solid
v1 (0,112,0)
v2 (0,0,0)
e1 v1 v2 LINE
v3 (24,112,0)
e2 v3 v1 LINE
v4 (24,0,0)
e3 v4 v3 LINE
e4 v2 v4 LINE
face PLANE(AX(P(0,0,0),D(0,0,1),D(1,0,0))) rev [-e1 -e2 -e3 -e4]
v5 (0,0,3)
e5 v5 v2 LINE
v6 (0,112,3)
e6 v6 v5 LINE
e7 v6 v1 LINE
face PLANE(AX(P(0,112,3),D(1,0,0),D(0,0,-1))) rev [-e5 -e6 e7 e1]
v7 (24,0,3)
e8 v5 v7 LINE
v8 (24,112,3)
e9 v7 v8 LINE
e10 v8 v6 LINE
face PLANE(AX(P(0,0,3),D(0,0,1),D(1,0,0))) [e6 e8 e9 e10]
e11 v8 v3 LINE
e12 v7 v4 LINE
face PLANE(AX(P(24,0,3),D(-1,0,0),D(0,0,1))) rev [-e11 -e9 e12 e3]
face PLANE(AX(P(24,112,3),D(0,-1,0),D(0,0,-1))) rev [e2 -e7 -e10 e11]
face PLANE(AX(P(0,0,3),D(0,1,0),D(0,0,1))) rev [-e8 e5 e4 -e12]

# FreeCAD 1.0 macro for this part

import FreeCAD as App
import Part
import Sketcher
from FreeCAD import Vector


def add_polygon(sketch, points):
    """Adds a closed chain of lines whose ends are joined by coincident constraints."""
    first, n = sketch.GeometryCount, len(points)
    for a, b in zip(points, points[1:] + points[:1]):
        sketch.addGeometry(Part.LineSegment(App.Vector(*a, 0), App.Vector(*b, 0)), False)
    for i in range(n):
        sketch.addConstraint(Sketcher.Constraint("Coincident", first + i, 2, first + (i + 1) % n, 1))

doc = App.newDocument("Part")
body = doc.addObject("PartDesign::Body", "Body")

# Sketch on XY plane
sketch1 = body.newObject("Sketcher::SketchObject", "Sketch")
sketch1.AttachmentSupport = (doc.getObject("XY_Plane"), [""])
sketch1.MapMode = "FlatFace"
add_polygon(sketch1, [(0, 112), (0, 0), (24, 0), (24, 112)])  # lines 0-3
sketch1.addConstraint(Sketcher.Constraint("Vertical", 0))
sketch1.addConstraint(Sketcher.Constraint("Horizontal", 1))
sketch1.addConstraint(Sketcher.Constraint("Vertical", 2))
sketch1.addConstraint(Sketcher.Constraint("Horizontal", 3))
sketch1.addConstraint(Sketcher.Constraint("Coincident", 0, 2, -1, 1))
sketch1.addConstraint(Sketcher.Constraint("DistanceX", 1, 1, 1, 2, 24.0))
sketch1.addConstraint(Sketcher.Constraint("DistanceY", 0, 2, 0, 1, 112.0))
pad1 = body.newObject("PartDesign::Pad", "Pad")
pad1.Profile = sketch1
pad1.Length = 3

doc.recompute()
